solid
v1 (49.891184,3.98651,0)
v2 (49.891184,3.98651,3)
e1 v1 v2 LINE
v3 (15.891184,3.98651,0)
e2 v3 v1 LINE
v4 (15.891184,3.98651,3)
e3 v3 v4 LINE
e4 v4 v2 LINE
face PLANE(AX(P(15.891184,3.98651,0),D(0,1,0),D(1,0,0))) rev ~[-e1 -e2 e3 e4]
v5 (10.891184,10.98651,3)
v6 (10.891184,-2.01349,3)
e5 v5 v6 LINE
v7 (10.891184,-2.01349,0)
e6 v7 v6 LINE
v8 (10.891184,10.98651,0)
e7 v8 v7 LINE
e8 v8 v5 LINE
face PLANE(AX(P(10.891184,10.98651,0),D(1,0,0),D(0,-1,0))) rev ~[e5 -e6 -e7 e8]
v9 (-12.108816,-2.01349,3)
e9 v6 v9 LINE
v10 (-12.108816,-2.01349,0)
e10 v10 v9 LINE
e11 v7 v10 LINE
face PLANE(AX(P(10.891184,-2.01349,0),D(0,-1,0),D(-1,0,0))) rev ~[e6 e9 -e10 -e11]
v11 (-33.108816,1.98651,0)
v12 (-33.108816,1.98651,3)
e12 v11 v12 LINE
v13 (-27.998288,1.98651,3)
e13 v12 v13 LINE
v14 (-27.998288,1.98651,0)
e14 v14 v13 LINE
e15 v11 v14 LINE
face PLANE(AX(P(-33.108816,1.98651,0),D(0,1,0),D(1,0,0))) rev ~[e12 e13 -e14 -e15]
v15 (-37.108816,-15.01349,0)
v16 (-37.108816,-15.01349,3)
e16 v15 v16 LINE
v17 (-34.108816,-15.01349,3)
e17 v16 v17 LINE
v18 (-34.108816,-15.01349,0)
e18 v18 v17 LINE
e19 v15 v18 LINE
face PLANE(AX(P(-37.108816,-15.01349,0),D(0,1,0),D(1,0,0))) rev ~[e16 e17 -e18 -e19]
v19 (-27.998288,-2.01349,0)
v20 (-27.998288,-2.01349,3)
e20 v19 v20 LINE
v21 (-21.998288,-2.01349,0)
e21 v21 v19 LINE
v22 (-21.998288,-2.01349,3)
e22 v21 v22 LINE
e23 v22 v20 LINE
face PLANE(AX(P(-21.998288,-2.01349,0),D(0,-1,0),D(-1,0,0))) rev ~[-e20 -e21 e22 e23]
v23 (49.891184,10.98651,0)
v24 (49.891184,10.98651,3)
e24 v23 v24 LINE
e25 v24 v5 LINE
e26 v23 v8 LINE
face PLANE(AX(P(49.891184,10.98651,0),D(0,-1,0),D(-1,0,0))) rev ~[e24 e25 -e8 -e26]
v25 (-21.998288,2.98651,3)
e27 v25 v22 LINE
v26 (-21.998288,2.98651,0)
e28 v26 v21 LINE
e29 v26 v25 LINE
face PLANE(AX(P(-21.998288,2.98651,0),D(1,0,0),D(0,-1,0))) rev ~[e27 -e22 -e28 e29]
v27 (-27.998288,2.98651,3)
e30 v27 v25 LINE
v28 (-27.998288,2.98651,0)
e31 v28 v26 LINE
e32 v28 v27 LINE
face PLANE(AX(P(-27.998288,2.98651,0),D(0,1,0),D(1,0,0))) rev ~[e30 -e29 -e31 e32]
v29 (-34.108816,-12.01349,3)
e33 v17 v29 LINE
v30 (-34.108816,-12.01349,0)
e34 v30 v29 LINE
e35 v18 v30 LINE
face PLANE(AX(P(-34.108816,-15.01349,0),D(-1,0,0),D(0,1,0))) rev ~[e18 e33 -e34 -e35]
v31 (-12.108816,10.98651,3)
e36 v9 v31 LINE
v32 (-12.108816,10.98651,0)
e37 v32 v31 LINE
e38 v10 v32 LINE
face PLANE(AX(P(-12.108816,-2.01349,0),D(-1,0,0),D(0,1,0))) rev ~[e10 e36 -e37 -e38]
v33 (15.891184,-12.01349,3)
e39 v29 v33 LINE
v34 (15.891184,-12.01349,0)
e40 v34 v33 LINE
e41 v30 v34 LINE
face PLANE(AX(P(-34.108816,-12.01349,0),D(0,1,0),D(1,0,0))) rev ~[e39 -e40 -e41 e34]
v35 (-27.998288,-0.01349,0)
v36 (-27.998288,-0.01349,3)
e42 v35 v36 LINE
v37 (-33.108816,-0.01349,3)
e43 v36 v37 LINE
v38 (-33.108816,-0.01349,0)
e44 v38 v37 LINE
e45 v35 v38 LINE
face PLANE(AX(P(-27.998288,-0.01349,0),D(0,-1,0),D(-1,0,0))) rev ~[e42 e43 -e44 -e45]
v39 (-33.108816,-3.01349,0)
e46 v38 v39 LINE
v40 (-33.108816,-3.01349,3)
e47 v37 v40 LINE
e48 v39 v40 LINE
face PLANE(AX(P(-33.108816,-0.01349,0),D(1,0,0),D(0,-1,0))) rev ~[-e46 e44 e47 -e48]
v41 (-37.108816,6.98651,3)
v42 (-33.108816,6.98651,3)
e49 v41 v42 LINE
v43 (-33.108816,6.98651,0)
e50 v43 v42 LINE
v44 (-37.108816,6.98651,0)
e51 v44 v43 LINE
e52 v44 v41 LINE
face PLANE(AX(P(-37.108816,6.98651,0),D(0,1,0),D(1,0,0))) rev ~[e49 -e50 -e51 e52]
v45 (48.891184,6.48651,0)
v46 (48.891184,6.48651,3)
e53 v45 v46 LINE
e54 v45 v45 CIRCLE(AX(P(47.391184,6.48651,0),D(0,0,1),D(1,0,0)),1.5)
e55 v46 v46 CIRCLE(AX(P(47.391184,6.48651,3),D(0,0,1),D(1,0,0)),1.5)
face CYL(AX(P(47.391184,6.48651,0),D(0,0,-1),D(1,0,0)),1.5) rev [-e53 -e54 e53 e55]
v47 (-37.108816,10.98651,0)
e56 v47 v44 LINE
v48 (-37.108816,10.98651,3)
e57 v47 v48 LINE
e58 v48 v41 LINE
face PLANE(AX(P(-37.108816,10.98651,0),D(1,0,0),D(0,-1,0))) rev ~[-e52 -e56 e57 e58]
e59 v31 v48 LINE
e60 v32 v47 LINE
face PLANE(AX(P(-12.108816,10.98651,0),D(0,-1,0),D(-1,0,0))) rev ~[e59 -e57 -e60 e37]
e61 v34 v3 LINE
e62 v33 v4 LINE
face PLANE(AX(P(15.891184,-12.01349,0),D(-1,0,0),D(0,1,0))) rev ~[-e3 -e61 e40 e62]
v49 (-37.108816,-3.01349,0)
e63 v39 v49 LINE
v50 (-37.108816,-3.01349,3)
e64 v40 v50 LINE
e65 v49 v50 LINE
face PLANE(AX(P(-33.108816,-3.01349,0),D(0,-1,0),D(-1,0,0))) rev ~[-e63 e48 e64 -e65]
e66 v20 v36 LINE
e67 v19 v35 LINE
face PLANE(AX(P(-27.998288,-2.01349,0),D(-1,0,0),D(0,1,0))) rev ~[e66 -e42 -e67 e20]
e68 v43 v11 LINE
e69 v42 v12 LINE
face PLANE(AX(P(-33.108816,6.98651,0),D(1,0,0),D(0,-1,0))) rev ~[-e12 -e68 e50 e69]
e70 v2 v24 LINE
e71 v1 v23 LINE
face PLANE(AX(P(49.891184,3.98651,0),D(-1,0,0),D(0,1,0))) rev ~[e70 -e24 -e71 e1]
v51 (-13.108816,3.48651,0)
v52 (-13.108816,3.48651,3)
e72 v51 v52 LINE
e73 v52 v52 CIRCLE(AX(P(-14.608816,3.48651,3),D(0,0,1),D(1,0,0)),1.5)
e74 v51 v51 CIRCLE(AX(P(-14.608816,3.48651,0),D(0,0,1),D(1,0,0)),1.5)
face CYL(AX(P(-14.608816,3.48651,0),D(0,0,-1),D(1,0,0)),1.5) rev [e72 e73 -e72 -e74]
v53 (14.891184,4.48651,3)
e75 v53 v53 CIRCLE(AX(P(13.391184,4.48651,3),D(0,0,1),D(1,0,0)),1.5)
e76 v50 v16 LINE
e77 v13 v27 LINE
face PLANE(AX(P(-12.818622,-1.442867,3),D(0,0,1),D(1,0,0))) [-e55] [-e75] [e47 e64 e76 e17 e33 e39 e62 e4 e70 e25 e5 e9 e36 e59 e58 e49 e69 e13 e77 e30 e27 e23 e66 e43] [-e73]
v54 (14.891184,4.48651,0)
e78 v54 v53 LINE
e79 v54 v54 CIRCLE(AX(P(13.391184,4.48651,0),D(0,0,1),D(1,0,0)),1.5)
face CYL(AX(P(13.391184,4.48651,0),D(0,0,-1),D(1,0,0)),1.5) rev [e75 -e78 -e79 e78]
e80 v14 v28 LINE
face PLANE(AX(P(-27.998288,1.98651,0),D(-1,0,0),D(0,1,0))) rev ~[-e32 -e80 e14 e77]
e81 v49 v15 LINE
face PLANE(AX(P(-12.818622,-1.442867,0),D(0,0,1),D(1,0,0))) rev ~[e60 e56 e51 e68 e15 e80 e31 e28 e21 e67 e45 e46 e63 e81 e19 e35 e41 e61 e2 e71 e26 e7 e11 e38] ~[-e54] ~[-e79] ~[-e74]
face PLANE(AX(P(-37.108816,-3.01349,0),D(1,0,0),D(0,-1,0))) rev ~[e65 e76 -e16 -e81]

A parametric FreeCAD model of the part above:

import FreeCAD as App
import Part
import Sketcher
from FreeCAD import Vector
Q = App.Units.Quantity


def add_polygon(sketch, points):
    """Adds a closed chain of lines whose ends are joined by coincident constraints."""
    first, n = sketch.GeometryCount, len(points)
    for a, b in zip(points, points[1:] + points[:1]):
        sketch.addGeometry(Part.LineSegment(App.Vector(*a, 0), App.Vector(*b, 0)), False)
    for i in range(n):
        sketch.addConstraint(Sketcher.Constraint("Coincident", first + i, 2, first + (i + 1) % n, 1))

doc = App.newDocument("Part")
body = doc.addObject("PartDesign::Body", "Body")

# Sketch on XY plane
sketch1 = body.newObject("Sketcher::SketchObject", "Sketch")
sketch1.AttachmentSupport = (doc.getObject("XY_Plane"), [""])
sketch1.MapMode = "FlatFace"
add_polygon(sketch1, [(-37.108816, -3.01349), (-37.108816, -15.01349), (-34.108816, -15.01349), (-34.108816, -12.01349), (15.891184, -12.01349), (15.891184, 3.98651), (49.891184, 3.98651), (49.891184, 10.98651), (10.891184, 10.98651), (10.891184, -2.01349), (-12.108816, -2.01349), (-12.108816, 10.98651), (-37.108816, 10.98651), (-37.108816, 6.98651), (-33.108816, 6.98651), (-33.108816, 1.98651), (-27.998288, 1.98651), (-27.998288, 2.98651), (-21.998288, 2.98651), (-21.998288, -2.01349), (-27.998288, -2.01349), (-27.998288, -0.01349), (-33.108816, -0.01349), (-33.108816, -3.01349)])  # lines 0-23
sketch1.addGeometry(Part.Circle(Vector(-14.608816, 3.48651, 0), Vector(0, 0, 1), 1.5), False)  # 24
sketch1.addGeometry(Part.Circle(Vector(13.391184, 4.48651, 0), Vector(0, 0, 1), 1.5), False)  # 25
sketch1.addGeometry(Part.Circle(Vector(47.391184, 6.48651, 0), Vector(0, 0, 1), 1.5), False)  # 26
sketch1.addConstraint(Sketcher.Constraint("Vertical", 0))
sketch1.addConstraint(Sketcher.Constraint("Horizontal", 1))
sketch1.addConstraint(Sketcher.Constraint("Vertical", 2))
sketch1.addConstraint(Sketcher.Constraint("Horizontal", 3))
sketch1.addConstraint(Sketcher.Constraint("Vertical", 4))
sketch1.addConstraint(Sketcher.Constraint("Horizontal", 5))
sketch1.addConstraint(Sketcher.Constraint("Vertical", 6))
sketch1.addConstraint(Sketcher.Constraint("Horizontal", 7))
sketch1.addConstraint(Sketcher.Constraint("Vertical", 8))
sketch1.addConstraint(Sketcher.Constraint("Horizontal", 9))
sketch1.addConstraint(Sketcher.Constraint("Vertical", 10))
sketch1.addConstraint(Sketcher.Constraint("Horizontal", 11))
sketch1.addConstraint(Sketcher.Constraint("Vertical", 12))
sketch1.addConstraint(Sketcher.Constraint("Horizontal", 13))
sketch1.addConstraint(Sketcher.Constraint("Vertical", 14))
sketch1.addConstraint(Sketcher.Constraint("Horizontal", 15))
sketch1.addConstraint(Sketcher.Constraint("Vertical", 16))
sketch1.addConstraint(Sketcher.Constraint("Horizontal", 17))
sketch1.addConstraint(Sketcher.Constraint("Vertical", 18))
sketch1.addConstraint(Sketcher.Constraint("Horizontal", 19))
sketch1.addConstraint(Sketcher.Constraint("Vertical", 20))
sketch1.addConstraint(Sketcher.Constraint("Horizontal", 21))
sketch1.addConstraint(Sketcher.Constraint("Vertical", 22))
sketch1.addConstraint(Sketcher.Constraint("Horizontal", 23))
sketch1.addConstraint(Sketcher.Constraint("Equal", 24, 25))
sketch1.addConstraint(Sketcher.Constraint("Equal", 25, 26))
sketch1.addConstraint(Sketcher.Constraint("Horizontal", 7, 2, 10, 2))
sketch1.addConstraint(Sketcher.Constraint("Horizontal", 9, 2, 18, 2))
sketch1.addConstraint(Sketcher.Constraint("Vertical", 0, 2, 11, 2))
sketch1.addConstraint(Sketcher.Constraint("Vertical", 16, 2, 19, 2))
sketch1.addConstraint(Sketcher.Constraint("Vertical", 14, 2, 21, 2))
sketch1.addConstraint(Sketcher.Constraint("Equal", 1, 2))
sketch1.addConstraint(Sketcher.Constraint("Equal", 23, 12))
sketch1.addConstraint(Sketcher.Constraint("Equal", 14, 18))
sketch1.addConstraint(Sketcher.Constraint("Equal", 2, 22))
sketch1.addConstraint(Sketcher.Constraint("Diameter", 24, Q("3 mm")))
sketch1.addConstraint(Sketcher.Constraint("DistanceX", 1, 1, 1, 2, Q("3 mm")))
sketch1.addConstraint(Sketcher.Constraint("DistanceX", 3, 1, 3, 2, Q("50 mm")))
sketch1.addConstraint(Sketcher.Constraint("DistanceX", 5, 1, 5, 2, Q("34 mm")))
sketch1.addConstraint(Sketcher.Constraint("DistanceX", 7, 2, 7, 1, Q("39 mm")))
sketch1.addConstraint(Sketcher.Constraint("DistanceX", 9, 2, 9, 1, Q("23 mm")))
sketch1.addConstraint(Sketcher.Constraint("DistanceX", 13, 1, 13, 2, Q("4 mm")))
sketch1.addConstraint(Sketcher.Constraint("DistanceX", 17, 1, 17, 2, Q("6 mm")))
sketch1.addConstraint(Sketcher.Constraint("DistanceY", 0, 2, 0, 1, Q("12 mm")))
sketch1.addConstraint(Sketcher.Constraint("DistanceY", 4, 1, 4, 2, Q("16 mm")))
sketch1.addConstraint(Sketcher.Constraint("DistanceY", 6, 1, 6, 2, Q("7 mm")))
sketch1.addConstraint(Sketcher.Constraint("DistanceY", 8, 2, 8, 1, Q("13 mm")))
sketch1.addConstraint(Sketcher.Constraint("DistanceY", 14, 2, 14, 1, Q("5 mm")))
sketch1.addConstraint(Sketcher.Constraint("DistanceX", 24, 3, 25, 3, Q("28 mm")))
sketch1.addConstraint(Sketcher.Constraint("DistanceY", 24, 3, 25, 3, Q("1 mm")))
sketch1.addConstraint(Sketcher.Constraint("DistanceX", 25, 3, 26, 3, Q("34 mm")))
sketch1.addConstraint(Sketcher.Constraint("DistanceY", 25, 3, 26, 3, Q("2 mm")))
sketch1.addConstraint(Sketcher.Constraint("DistanceX", 0, 2, 24, 3, Q("22.5 mm")))
sketch1.addConstraint(Sketcher.Constraint("DistanceY", 0, 2, 24, 3, Q("18.5 mm")))
sketch1.addConstraint(Sketcher.Constraint("DistanceX", 15, 1, 15, 2, Q("5.110528 mm")))
sketch1.addConstraint(Sketcher.Constraint("DistanceY", -1, 1, 24, 3, Q("3.48651 mm")))
sketch1.addConstraint(Sketcher.Constraint("DistanceX", 24, 3, -1, 1, Q("14.608816 mm")))
pad1 = body.newObject("PartDesign::Pad", "Pad")
pad1.Profile = sketch1
pad1.Length = 3

doc.recompute()
